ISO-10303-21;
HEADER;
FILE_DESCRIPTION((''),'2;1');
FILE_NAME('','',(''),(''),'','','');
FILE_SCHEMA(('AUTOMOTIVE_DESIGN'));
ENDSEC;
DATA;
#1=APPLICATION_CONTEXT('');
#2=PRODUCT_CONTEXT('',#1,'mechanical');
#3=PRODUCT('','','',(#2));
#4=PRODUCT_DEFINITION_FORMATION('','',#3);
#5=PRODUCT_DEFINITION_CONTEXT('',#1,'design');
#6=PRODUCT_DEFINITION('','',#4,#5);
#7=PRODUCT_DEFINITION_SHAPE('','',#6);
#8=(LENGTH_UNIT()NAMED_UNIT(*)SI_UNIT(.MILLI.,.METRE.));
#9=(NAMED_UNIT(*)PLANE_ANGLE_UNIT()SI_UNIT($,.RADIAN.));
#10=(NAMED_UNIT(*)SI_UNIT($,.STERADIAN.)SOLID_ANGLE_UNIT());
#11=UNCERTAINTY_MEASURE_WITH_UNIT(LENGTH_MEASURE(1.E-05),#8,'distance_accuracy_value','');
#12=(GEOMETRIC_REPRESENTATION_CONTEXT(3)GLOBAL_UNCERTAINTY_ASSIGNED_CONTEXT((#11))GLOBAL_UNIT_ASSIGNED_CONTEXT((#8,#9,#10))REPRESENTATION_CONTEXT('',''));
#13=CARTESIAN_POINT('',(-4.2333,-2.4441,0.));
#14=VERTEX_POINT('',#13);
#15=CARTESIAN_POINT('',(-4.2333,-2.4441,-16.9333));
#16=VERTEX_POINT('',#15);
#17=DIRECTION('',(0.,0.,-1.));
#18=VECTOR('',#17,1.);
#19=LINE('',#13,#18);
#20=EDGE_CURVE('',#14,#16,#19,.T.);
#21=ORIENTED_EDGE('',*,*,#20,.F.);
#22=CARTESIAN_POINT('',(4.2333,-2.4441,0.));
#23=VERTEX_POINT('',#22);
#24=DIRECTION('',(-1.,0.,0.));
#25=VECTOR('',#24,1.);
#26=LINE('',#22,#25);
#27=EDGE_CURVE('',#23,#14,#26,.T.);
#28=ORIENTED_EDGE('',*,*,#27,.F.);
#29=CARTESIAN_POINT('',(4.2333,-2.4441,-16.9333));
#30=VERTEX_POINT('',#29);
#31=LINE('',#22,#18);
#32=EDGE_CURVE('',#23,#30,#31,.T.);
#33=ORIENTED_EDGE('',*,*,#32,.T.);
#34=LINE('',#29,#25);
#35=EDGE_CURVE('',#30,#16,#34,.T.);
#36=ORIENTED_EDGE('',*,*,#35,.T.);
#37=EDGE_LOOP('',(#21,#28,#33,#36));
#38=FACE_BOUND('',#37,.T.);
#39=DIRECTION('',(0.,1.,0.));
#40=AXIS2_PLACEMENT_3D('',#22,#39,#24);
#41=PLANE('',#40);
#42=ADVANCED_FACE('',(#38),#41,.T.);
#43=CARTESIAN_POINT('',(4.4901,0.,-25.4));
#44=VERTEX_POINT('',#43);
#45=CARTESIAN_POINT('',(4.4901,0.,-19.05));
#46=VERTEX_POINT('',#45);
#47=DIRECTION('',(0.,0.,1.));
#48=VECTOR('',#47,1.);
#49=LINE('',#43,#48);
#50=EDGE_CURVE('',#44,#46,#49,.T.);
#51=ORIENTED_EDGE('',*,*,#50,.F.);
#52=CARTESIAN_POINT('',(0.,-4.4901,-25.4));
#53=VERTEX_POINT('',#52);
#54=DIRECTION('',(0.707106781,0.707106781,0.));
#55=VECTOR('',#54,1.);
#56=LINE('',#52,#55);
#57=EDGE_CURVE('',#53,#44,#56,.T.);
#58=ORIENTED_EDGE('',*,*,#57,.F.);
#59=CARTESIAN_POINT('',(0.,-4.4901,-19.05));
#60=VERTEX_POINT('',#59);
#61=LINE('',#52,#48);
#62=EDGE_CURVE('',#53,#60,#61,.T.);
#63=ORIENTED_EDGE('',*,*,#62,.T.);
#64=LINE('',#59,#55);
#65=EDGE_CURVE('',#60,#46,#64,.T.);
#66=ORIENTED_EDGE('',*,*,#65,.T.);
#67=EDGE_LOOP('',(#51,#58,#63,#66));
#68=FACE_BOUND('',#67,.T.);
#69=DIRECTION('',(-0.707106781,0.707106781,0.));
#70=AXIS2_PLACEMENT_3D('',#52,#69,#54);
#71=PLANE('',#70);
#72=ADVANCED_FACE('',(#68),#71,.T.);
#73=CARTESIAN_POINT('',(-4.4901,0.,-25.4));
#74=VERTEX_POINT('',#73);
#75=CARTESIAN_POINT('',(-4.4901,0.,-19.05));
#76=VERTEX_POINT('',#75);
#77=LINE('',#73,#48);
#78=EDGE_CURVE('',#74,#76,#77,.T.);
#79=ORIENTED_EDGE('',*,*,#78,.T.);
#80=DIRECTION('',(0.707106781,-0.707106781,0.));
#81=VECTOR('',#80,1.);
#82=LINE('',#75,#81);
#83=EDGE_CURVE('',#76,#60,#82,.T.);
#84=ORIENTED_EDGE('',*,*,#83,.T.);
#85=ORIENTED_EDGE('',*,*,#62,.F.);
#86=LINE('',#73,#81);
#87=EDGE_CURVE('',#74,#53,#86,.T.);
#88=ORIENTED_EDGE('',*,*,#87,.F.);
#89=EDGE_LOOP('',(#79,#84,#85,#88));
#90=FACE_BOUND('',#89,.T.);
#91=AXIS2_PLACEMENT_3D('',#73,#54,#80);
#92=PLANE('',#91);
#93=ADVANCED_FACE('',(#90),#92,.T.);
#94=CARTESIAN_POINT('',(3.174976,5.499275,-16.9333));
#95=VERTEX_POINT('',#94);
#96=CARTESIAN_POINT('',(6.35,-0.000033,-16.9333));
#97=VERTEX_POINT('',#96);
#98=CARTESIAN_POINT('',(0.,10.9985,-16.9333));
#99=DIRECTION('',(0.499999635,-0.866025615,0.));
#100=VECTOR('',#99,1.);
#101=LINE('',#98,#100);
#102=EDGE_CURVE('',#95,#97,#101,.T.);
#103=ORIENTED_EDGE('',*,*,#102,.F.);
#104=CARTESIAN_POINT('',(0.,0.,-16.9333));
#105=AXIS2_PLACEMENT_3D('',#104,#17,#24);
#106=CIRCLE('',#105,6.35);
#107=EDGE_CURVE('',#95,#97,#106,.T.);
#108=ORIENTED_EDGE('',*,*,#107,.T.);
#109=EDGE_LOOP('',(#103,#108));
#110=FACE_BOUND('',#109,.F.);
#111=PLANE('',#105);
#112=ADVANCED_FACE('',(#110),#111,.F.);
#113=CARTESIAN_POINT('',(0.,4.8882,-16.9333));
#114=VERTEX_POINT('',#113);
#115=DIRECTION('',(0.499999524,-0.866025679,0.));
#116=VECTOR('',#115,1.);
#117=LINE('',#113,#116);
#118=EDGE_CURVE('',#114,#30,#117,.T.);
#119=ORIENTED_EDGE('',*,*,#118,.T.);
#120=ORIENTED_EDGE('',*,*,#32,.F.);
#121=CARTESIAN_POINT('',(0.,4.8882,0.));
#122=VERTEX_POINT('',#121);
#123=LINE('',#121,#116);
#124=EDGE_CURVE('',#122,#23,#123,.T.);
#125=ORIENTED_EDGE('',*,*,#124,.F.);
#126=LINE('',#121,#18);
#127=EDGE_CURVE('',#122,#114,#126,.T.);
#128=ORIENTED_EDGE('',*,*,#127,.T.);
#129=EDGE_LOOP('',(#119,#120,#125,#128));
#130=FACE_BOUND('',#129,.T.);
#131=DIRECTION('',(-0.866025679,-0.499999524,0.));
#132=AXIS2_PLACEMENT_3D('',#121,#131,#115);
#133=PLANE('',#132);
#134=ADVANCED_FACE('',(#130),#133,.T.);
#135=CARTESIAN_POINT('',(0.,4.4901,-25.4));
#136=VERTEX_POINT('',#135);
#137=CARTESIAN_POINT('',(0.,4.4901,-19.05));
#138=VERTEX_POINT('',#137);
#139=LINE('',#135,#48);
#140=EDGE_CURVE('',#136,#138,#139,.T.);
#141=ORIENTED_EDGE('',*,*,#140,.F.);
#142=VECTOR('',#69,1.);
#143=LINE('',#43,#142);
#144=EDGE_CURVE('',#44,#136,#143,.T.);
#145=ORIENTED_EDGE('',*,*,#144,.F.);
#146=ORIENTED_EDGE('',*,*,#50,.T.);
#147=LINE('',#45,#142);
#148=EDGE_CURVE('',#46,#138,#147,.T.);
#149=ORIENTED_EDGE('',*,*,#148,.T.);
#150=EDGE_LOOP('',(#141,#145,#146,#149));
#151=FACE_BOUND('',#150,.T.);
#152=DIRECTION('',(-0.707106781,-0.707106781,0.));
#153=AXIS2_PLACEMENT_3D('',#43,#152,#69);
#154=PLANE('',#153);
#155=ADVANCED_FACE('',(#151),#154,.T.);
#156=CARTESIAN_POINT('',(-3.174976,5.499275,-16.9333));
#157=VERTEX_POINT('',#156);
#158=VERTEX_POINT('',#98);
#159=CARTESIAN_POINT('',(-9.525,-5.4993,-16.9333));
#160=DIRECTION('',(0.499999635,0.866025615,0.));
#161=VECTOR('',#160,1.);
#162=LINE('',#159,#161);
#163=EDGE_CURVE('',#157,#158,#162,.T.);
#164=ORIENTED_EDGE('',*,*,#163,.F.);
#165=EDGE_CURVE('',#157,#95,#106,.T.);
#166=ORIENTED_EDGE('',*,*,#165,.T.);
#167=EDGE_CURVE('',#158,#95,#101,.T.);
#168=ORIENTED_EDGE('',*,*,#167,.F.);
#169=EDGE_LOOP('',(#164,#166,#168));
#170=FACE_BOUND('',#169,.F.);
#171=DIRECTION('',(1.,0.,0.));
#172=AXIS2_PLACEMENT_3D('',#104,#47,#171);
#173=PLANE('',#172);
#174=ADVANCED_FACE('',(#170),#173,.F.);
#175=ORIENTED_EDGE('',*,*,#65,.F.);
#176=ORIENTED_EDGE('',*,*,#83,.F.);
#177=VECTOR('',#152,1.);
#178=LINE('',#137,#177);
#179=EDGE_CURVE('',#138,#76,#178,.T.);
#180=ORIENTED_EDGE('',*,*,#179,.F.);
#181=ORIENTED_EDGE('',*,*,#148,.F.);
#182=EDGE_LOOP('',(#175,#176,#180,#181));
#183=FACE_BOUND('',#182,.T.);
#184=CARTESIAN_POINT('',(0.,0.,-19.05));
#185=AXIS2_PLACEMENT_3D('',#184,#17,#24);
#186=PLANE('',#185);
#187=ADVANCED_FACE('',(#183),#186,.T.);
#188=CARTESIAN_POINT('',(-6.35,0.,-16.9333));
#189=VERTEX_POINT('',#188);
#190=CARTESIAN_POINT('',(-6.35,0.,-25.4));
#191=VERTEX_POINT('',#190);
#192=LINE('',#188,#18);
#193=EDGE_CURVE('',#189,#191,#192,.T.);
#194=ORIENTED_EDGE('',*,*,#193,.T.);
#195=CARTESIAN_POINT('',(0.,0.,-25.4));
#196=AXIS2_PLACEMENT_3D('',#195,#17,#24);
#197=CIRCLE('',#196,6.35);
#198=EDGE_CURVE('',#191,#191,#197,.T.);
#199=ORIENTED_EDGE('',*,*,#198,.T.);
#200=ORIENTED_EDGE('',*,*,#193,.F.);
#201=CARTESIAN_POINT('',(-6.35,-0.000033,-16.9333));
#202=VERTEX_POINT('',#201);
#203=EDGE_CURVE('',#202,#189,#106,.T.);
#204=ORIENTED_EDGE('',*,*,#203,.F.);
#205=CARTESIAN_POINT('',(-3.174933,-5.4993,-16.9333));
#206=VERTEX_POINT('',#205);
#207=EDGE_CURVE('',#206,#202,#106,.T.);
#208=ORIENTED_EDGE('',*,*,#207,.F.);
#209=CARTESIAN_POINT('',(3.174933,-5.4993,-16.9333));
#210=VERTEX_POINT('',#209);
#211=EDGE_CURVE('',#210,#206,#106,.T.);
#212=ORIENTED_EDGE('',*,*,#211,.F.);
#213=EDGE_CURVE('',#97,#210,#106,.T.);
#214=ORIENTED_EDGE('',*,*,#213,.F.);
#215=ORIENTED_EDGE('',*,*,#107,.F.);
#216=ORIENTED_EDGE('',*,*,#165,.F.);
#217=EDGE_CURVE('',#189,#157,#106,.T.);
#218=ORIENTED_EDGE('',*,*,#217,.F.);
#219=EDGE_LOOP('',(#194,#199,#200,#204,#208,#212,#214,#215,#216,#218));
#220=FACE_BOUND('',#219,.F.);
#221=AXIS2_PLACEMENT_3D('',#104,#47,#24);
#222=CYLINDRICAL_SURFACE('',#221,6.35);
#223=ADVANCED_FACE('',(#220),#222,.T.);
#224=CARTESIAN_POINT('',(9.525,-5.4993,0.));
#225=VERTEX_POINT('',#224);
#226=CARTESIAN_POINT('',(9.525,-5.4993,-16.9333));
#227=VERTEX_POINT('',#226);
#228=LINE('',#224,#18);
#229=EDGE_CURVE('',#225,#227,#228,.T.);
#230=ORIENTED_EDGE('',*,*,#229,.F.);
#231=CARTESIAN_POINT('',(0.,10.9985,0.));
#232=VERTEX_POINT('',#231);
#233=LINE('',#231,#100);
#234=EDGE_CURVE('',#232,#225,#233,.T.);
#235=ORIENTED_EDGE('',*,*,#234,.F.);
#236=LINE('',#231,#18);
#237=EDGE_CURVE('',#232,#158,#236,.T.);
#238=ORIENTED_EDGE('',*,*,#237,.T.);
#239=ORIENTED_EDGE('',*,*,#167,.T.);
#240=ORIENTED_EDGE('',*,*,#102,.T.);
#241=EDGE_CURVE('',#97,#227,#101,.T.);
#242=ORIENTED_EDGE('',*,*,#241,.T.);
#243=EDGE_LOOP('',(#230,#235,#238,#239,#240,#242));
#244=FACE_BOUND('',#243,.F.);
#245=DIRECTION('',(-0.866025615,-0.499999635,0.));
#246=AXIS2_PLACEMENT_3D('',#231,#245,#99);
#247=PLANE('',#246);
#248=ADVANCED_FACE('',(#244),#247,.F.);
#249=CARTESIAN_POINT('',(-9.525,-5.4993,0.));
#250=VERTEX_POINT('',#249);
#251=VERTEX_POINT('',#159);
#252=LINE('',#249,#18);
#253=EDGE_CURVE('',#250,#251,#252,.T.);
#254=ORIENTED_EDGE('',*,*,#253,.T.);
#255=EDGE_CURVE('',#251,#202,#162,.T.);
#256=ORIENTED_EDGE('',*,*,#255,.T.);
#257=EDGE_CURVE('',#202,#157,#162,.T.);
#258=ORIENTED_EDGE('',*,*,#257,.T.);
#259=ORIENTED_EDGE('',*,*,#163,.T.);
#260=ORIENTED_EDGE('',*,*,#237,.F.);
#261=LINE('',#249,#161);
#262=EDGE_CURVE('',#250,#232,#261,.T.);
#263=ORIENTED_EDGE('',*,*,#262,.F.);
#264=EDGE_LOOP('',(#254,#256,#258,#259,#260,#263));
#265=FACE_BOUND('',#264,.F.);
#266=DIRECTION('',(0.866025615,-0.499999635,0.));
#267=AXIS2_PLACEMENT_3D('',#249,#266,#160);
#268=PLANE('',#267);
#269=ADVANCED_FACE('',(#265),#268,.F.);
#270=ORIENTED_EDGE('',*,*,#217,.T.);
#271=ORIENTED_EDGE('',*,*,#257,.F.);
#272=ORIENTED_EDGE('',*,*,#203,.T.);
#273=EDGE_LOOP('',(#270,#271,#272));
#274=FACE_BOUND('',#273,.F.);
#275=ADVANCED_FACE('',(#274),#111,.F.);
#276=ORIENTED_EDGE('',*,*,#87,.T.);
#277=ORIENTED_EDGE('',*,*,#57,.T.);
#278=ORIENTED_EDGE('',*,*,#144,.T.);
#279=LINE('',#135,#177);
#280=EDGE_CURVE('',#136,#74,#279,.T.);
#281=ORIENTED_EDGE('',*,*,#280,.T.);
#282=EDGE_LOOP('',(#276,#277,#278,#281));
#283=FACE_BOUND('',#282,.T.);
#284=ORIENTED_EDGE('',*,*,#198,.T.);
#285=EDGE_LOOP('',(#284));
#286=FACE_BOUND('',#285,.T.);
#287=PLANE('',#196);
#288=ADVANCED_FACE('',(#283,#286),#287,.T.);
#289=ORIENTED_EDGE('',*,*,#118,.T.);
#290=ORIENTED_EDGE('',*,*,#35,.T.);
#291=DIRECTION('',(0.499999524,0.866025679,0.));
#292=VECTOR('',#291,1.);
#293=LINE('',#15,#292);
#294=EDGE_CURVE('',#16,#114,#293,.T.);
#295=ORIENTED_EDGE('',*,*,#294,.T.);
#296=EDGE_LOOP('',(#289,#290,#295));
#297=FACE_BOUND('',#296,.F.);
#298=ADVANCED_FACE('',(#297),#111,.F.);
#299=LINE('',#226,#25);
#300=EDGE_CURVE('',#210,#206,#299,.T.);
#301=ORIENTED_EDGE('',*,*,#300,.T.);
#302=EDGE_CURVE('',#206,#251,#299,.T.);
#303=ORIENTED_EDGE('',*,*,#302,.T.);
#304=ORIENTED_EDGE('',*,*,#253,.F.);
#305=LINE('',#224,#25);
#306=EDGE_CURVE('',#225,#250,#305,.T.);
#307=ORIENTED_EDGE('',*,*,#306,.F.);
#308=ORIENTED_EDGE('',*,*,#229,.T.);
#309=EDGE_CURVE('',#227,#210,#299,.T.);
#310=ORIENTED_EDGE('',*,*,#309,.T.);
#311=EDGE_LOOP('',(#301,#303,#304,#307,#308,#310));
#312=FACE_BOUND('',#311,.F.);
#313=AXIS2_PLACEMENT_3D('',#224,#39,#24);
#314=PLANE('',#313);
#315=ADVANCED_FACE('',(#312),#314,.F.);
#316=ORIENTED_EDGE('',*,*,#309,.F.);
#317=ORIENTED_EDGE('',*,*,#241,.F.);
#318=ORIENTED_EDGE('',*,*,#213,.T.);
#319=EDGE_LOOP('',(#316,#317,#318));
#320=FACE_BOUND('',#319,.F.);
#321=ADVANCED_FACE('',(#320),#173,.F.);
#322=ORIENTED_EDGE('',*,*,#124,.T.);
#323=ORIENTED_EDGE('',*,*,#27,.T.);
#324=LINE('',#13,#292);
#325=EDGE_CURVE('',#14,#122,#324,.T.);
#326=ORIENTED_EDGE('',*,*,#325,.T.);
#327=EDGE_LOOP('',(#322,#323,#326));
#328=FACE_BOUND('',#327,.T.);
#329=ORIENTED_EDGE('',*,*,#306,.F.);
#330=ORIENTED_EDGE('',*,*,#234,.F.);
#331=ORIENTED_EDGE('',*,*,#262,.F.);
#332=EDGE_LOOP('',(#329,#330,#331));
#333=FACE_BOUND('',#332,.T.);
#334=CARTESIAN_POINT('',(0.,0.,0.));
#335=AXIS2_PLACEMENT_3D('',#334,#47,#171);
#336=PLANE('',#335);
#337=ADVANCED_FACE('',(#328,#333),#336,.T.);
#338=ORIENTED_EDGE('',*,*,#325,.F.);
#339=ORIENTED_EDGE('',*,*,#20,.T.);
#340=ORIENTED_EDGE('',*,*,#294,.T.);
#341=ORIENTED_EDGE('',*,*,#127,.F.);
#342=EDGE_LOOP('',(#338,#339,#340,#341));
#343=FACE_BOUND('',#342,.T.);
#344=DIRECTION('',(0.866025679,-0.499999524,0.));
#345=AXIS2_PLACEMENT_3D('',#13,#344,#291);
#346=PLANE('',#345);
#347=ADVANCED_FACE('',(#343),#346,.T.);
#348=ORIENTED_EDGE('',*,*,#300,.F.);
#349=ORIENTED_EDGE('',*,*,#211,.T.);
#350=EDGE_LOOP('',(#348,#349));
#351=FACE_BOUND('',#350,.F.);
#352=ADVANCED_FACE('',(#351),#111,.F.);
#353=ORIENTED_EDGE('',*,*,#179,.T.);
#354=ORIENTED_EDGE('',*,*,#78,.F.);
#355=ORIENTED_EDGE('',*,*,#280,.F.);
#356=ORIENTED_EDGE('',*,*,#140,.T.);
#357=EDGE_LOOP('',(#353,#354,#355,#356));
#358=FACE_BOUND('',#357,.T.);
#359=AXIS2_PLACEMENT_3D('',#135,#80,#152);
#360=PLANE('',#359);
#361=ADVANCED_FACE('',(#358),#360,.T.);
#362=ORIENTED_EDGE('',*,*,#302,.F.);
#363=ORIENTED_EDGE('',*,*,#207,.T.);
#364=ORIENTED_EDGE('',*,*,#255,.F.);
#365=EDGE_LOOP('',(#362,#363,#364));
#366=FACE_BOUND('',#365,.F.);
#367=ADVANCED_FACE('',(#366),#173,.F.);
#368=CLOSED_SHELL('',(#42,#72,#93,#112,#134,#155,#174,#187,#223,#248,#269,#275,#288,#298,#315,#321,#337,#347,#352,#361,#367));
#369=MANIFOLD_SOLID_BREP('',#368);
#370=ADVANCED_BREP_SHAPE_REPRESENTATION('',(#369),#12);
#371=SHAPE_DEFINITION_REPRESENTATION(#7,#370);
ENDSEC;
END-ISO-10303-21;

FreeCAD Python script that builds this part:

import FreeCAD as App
import Part
import Sketcher
from FreeCAD import Vector
Q = App.Units.Quantity


def add_polygon(sketch, points):
    """Adds a closed chain of lines whose ends are joined by coincident constraints."""
    first, n = sketch.GeometryCount, len(points)
    for a, b in zip(points, points[1:] + points[:1]):
        sketch.addGeometry(Part.LineSegment(App.Vector(*a, 0), App.Vector(*b, 0)), False)
    for i in range(n):
        sketch.addConstraint(Sketcher.Constraint("Coincident", first + i, 2, first + (i + 1) % n, 1))

doc = App.newDocument("Part")
body = doc.addObject("PartDesign::Body", "Body")

# Sketch on XY plane
sketch1 = doc.addObject("Sketcher::SketchObject", "Sketch")
body.addObject(sketch1)
sketch1.AttachmentSupport = (doc.XY_Plane, [""])
sketch1.MapMode = "FlatFace"
add_polygon(sketch1, [(10, -5), (0, 11), (-10, -5)])  # lines 0-2
add_polygon(sketch1, [(-4, -2), (0, 5), (4, -2)])  # lines 3-5
sketch1.addConstraint(Sketcher.Constraint("Horizontal", 2))
sketch1.addConstraint(Sketcher.Constraint("Horizontal", 5))
sketch1.addConstraint(Sketcher.Constraint("PointOnObject", 0, 2, -2))
sketch1.addConstraint(Sketcher.Constraint("PointOnObject", 3, 2, -2))
sketch1.addConstraint(Sketcher.Constraint("Parallel", 1, 3))
sketch1.addConstraint(Sketcher.Constraint("Parallel", 0, 4))
sketch1.addConstraint(Sketcher.Constraint("Equal", 0, 1))
sketch1.addConstraint(Sketcher.Constraint("DistanceX", 2, 1, 2, 2, Q("0.75 in")))
sketch1.addConstraint(Sketcher.Constraint("Distance", 0, Q("0.75 in")))
sketch1.addConstraint(Sketcher.Constraint("DistanceX", 5, 2, 5, 1, 8.4666))
sketch1.addConstraint(Sketcher.Constraint("DistanceY", -1, 1, 0, 2, Q("0.433 in")))
sketch1.addConstraint(Sketcher.Constraint("DistanceY", -1, 1, 3, 2, 4.8882))
pad1 = doc.addObject("PartDesign::Pad", "Pad")
body.addObject(pad1)
pad1.Profile = sketch1
pad1.Length = 16.9333
pad1.Reversed = True

# Sketch on XY plane
sketch2 = doc.addObject("Sketcher::SketchObject", "Sketch001")
body.addObject(sketch2)
sketch2.AttachmentSupport = (doc.XY_Plane, [""])
sketch2.MapMode = "FlatFace"
sketch2.AttachmentOffset = App.Placement(Vector(0, 0, -16.9333), App.Rotation())
sketch2.addGeometry(Part.Circle(Vector(0, 0, 0), Vector(0, 0, 1), 6), False)
sketch2.addConstraint(Sketcher.Constraint("Coincident", 0, 3, -1, 1))
sketch2.addConstraint(Sketcher.Constraint("Diameter", 0, Q("0.5 in")))
pad2 = doc.addObject("PartDesign::Pad", "Pad001")
body.addObject(pad2)
pad2.Profile = sketch2
pad2.Length = 8.4667
pad2.Reversed = True

# Sketch on XY plane
sketch3 = doc.addObject("Sketcher::SketchObject", "Sketch002")
body.addObject(sketch3)
sketch3.AttachmentSupport = (doc.XY_Plane, [""])
sketch3.MapMode = "FlatFace"
sketch3.AttachmentOffset = App.Placement(Vector(0, 0, -1 * 25.4), App.Rotation())
add_polygon(sketch3, [(0, -4), (-4, 0), (0, 4), (4, 0)])  # lines 0-3
sketch3.addConstraint(Sketcher.Constraint("Symmetric", 0, 2, 2, 2, -1, 1))
sketch3.addConstraint(Sketcher.Constraint("Symmetric", 1, 2, 3, 2, -1, 1))
sketch3.addConstraint(Sketcher.Constraint("PointOnObject", 0, 2, -1))
sketch3.addConstraint(Sketcher.Constraint("PointOnObject", 1, 2, -2))
sketch3.addConstraint(Sketcher.Constraint("Perpendicular", 0, 1))
sketch3.addConstraint(Sketcher.Constraint("Distance", 0, Q("0.25 in")))
pocket1 = doc.addObject("PartDesign::Pocket", "Pocket")
body.addObject(pocket1)
pocket1.Profile = sketch3
pocket1.Length = Q("0.25 in")
pocket1.Reversed = True

doc.recompute()
